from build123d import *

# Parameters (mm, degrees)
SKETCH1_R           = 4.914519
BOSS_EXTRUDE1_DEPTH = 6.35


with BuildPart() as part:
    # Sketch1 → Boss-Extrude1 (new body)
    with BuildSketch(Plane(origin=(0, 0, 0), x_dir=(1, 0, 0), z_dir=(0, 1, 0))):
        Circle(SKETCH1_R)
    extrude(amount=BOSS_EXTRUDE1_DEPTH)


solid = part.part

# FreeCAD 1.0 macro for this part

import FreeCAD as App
import Part
import Sketcher
Q = App.Units.Quantity

doc = App.newDocument("Part")
body = doc.addObject("PartDesign::Body", "Body")

sketch1 = body.newObject("Sketcher::SketchObject", "Sketch")
sketch1.AttachmentSupport = (doc.getObject("XZ_Plane"), [""])
sketch1.MapMode = "FlatFace"
sketch1.addGeometry(Part.Circle(App.Vector(0, 0, 0), App.Vector(0, 0, 1), 4.914519), False)
sketch1.addConstraint([
    Sketcher.Constraint("Coincident", 0, 3, -1, 1),
    Sketcher.Constraint("Diameter", 0, 9.829038),
])
pad1 = body.newObject("PartDesign::Pad", "Pad")
pad1.Profile = sketch1
pad1.Length = Q("0.25 in")
pad1.Reversed = True

doc.recompute()
